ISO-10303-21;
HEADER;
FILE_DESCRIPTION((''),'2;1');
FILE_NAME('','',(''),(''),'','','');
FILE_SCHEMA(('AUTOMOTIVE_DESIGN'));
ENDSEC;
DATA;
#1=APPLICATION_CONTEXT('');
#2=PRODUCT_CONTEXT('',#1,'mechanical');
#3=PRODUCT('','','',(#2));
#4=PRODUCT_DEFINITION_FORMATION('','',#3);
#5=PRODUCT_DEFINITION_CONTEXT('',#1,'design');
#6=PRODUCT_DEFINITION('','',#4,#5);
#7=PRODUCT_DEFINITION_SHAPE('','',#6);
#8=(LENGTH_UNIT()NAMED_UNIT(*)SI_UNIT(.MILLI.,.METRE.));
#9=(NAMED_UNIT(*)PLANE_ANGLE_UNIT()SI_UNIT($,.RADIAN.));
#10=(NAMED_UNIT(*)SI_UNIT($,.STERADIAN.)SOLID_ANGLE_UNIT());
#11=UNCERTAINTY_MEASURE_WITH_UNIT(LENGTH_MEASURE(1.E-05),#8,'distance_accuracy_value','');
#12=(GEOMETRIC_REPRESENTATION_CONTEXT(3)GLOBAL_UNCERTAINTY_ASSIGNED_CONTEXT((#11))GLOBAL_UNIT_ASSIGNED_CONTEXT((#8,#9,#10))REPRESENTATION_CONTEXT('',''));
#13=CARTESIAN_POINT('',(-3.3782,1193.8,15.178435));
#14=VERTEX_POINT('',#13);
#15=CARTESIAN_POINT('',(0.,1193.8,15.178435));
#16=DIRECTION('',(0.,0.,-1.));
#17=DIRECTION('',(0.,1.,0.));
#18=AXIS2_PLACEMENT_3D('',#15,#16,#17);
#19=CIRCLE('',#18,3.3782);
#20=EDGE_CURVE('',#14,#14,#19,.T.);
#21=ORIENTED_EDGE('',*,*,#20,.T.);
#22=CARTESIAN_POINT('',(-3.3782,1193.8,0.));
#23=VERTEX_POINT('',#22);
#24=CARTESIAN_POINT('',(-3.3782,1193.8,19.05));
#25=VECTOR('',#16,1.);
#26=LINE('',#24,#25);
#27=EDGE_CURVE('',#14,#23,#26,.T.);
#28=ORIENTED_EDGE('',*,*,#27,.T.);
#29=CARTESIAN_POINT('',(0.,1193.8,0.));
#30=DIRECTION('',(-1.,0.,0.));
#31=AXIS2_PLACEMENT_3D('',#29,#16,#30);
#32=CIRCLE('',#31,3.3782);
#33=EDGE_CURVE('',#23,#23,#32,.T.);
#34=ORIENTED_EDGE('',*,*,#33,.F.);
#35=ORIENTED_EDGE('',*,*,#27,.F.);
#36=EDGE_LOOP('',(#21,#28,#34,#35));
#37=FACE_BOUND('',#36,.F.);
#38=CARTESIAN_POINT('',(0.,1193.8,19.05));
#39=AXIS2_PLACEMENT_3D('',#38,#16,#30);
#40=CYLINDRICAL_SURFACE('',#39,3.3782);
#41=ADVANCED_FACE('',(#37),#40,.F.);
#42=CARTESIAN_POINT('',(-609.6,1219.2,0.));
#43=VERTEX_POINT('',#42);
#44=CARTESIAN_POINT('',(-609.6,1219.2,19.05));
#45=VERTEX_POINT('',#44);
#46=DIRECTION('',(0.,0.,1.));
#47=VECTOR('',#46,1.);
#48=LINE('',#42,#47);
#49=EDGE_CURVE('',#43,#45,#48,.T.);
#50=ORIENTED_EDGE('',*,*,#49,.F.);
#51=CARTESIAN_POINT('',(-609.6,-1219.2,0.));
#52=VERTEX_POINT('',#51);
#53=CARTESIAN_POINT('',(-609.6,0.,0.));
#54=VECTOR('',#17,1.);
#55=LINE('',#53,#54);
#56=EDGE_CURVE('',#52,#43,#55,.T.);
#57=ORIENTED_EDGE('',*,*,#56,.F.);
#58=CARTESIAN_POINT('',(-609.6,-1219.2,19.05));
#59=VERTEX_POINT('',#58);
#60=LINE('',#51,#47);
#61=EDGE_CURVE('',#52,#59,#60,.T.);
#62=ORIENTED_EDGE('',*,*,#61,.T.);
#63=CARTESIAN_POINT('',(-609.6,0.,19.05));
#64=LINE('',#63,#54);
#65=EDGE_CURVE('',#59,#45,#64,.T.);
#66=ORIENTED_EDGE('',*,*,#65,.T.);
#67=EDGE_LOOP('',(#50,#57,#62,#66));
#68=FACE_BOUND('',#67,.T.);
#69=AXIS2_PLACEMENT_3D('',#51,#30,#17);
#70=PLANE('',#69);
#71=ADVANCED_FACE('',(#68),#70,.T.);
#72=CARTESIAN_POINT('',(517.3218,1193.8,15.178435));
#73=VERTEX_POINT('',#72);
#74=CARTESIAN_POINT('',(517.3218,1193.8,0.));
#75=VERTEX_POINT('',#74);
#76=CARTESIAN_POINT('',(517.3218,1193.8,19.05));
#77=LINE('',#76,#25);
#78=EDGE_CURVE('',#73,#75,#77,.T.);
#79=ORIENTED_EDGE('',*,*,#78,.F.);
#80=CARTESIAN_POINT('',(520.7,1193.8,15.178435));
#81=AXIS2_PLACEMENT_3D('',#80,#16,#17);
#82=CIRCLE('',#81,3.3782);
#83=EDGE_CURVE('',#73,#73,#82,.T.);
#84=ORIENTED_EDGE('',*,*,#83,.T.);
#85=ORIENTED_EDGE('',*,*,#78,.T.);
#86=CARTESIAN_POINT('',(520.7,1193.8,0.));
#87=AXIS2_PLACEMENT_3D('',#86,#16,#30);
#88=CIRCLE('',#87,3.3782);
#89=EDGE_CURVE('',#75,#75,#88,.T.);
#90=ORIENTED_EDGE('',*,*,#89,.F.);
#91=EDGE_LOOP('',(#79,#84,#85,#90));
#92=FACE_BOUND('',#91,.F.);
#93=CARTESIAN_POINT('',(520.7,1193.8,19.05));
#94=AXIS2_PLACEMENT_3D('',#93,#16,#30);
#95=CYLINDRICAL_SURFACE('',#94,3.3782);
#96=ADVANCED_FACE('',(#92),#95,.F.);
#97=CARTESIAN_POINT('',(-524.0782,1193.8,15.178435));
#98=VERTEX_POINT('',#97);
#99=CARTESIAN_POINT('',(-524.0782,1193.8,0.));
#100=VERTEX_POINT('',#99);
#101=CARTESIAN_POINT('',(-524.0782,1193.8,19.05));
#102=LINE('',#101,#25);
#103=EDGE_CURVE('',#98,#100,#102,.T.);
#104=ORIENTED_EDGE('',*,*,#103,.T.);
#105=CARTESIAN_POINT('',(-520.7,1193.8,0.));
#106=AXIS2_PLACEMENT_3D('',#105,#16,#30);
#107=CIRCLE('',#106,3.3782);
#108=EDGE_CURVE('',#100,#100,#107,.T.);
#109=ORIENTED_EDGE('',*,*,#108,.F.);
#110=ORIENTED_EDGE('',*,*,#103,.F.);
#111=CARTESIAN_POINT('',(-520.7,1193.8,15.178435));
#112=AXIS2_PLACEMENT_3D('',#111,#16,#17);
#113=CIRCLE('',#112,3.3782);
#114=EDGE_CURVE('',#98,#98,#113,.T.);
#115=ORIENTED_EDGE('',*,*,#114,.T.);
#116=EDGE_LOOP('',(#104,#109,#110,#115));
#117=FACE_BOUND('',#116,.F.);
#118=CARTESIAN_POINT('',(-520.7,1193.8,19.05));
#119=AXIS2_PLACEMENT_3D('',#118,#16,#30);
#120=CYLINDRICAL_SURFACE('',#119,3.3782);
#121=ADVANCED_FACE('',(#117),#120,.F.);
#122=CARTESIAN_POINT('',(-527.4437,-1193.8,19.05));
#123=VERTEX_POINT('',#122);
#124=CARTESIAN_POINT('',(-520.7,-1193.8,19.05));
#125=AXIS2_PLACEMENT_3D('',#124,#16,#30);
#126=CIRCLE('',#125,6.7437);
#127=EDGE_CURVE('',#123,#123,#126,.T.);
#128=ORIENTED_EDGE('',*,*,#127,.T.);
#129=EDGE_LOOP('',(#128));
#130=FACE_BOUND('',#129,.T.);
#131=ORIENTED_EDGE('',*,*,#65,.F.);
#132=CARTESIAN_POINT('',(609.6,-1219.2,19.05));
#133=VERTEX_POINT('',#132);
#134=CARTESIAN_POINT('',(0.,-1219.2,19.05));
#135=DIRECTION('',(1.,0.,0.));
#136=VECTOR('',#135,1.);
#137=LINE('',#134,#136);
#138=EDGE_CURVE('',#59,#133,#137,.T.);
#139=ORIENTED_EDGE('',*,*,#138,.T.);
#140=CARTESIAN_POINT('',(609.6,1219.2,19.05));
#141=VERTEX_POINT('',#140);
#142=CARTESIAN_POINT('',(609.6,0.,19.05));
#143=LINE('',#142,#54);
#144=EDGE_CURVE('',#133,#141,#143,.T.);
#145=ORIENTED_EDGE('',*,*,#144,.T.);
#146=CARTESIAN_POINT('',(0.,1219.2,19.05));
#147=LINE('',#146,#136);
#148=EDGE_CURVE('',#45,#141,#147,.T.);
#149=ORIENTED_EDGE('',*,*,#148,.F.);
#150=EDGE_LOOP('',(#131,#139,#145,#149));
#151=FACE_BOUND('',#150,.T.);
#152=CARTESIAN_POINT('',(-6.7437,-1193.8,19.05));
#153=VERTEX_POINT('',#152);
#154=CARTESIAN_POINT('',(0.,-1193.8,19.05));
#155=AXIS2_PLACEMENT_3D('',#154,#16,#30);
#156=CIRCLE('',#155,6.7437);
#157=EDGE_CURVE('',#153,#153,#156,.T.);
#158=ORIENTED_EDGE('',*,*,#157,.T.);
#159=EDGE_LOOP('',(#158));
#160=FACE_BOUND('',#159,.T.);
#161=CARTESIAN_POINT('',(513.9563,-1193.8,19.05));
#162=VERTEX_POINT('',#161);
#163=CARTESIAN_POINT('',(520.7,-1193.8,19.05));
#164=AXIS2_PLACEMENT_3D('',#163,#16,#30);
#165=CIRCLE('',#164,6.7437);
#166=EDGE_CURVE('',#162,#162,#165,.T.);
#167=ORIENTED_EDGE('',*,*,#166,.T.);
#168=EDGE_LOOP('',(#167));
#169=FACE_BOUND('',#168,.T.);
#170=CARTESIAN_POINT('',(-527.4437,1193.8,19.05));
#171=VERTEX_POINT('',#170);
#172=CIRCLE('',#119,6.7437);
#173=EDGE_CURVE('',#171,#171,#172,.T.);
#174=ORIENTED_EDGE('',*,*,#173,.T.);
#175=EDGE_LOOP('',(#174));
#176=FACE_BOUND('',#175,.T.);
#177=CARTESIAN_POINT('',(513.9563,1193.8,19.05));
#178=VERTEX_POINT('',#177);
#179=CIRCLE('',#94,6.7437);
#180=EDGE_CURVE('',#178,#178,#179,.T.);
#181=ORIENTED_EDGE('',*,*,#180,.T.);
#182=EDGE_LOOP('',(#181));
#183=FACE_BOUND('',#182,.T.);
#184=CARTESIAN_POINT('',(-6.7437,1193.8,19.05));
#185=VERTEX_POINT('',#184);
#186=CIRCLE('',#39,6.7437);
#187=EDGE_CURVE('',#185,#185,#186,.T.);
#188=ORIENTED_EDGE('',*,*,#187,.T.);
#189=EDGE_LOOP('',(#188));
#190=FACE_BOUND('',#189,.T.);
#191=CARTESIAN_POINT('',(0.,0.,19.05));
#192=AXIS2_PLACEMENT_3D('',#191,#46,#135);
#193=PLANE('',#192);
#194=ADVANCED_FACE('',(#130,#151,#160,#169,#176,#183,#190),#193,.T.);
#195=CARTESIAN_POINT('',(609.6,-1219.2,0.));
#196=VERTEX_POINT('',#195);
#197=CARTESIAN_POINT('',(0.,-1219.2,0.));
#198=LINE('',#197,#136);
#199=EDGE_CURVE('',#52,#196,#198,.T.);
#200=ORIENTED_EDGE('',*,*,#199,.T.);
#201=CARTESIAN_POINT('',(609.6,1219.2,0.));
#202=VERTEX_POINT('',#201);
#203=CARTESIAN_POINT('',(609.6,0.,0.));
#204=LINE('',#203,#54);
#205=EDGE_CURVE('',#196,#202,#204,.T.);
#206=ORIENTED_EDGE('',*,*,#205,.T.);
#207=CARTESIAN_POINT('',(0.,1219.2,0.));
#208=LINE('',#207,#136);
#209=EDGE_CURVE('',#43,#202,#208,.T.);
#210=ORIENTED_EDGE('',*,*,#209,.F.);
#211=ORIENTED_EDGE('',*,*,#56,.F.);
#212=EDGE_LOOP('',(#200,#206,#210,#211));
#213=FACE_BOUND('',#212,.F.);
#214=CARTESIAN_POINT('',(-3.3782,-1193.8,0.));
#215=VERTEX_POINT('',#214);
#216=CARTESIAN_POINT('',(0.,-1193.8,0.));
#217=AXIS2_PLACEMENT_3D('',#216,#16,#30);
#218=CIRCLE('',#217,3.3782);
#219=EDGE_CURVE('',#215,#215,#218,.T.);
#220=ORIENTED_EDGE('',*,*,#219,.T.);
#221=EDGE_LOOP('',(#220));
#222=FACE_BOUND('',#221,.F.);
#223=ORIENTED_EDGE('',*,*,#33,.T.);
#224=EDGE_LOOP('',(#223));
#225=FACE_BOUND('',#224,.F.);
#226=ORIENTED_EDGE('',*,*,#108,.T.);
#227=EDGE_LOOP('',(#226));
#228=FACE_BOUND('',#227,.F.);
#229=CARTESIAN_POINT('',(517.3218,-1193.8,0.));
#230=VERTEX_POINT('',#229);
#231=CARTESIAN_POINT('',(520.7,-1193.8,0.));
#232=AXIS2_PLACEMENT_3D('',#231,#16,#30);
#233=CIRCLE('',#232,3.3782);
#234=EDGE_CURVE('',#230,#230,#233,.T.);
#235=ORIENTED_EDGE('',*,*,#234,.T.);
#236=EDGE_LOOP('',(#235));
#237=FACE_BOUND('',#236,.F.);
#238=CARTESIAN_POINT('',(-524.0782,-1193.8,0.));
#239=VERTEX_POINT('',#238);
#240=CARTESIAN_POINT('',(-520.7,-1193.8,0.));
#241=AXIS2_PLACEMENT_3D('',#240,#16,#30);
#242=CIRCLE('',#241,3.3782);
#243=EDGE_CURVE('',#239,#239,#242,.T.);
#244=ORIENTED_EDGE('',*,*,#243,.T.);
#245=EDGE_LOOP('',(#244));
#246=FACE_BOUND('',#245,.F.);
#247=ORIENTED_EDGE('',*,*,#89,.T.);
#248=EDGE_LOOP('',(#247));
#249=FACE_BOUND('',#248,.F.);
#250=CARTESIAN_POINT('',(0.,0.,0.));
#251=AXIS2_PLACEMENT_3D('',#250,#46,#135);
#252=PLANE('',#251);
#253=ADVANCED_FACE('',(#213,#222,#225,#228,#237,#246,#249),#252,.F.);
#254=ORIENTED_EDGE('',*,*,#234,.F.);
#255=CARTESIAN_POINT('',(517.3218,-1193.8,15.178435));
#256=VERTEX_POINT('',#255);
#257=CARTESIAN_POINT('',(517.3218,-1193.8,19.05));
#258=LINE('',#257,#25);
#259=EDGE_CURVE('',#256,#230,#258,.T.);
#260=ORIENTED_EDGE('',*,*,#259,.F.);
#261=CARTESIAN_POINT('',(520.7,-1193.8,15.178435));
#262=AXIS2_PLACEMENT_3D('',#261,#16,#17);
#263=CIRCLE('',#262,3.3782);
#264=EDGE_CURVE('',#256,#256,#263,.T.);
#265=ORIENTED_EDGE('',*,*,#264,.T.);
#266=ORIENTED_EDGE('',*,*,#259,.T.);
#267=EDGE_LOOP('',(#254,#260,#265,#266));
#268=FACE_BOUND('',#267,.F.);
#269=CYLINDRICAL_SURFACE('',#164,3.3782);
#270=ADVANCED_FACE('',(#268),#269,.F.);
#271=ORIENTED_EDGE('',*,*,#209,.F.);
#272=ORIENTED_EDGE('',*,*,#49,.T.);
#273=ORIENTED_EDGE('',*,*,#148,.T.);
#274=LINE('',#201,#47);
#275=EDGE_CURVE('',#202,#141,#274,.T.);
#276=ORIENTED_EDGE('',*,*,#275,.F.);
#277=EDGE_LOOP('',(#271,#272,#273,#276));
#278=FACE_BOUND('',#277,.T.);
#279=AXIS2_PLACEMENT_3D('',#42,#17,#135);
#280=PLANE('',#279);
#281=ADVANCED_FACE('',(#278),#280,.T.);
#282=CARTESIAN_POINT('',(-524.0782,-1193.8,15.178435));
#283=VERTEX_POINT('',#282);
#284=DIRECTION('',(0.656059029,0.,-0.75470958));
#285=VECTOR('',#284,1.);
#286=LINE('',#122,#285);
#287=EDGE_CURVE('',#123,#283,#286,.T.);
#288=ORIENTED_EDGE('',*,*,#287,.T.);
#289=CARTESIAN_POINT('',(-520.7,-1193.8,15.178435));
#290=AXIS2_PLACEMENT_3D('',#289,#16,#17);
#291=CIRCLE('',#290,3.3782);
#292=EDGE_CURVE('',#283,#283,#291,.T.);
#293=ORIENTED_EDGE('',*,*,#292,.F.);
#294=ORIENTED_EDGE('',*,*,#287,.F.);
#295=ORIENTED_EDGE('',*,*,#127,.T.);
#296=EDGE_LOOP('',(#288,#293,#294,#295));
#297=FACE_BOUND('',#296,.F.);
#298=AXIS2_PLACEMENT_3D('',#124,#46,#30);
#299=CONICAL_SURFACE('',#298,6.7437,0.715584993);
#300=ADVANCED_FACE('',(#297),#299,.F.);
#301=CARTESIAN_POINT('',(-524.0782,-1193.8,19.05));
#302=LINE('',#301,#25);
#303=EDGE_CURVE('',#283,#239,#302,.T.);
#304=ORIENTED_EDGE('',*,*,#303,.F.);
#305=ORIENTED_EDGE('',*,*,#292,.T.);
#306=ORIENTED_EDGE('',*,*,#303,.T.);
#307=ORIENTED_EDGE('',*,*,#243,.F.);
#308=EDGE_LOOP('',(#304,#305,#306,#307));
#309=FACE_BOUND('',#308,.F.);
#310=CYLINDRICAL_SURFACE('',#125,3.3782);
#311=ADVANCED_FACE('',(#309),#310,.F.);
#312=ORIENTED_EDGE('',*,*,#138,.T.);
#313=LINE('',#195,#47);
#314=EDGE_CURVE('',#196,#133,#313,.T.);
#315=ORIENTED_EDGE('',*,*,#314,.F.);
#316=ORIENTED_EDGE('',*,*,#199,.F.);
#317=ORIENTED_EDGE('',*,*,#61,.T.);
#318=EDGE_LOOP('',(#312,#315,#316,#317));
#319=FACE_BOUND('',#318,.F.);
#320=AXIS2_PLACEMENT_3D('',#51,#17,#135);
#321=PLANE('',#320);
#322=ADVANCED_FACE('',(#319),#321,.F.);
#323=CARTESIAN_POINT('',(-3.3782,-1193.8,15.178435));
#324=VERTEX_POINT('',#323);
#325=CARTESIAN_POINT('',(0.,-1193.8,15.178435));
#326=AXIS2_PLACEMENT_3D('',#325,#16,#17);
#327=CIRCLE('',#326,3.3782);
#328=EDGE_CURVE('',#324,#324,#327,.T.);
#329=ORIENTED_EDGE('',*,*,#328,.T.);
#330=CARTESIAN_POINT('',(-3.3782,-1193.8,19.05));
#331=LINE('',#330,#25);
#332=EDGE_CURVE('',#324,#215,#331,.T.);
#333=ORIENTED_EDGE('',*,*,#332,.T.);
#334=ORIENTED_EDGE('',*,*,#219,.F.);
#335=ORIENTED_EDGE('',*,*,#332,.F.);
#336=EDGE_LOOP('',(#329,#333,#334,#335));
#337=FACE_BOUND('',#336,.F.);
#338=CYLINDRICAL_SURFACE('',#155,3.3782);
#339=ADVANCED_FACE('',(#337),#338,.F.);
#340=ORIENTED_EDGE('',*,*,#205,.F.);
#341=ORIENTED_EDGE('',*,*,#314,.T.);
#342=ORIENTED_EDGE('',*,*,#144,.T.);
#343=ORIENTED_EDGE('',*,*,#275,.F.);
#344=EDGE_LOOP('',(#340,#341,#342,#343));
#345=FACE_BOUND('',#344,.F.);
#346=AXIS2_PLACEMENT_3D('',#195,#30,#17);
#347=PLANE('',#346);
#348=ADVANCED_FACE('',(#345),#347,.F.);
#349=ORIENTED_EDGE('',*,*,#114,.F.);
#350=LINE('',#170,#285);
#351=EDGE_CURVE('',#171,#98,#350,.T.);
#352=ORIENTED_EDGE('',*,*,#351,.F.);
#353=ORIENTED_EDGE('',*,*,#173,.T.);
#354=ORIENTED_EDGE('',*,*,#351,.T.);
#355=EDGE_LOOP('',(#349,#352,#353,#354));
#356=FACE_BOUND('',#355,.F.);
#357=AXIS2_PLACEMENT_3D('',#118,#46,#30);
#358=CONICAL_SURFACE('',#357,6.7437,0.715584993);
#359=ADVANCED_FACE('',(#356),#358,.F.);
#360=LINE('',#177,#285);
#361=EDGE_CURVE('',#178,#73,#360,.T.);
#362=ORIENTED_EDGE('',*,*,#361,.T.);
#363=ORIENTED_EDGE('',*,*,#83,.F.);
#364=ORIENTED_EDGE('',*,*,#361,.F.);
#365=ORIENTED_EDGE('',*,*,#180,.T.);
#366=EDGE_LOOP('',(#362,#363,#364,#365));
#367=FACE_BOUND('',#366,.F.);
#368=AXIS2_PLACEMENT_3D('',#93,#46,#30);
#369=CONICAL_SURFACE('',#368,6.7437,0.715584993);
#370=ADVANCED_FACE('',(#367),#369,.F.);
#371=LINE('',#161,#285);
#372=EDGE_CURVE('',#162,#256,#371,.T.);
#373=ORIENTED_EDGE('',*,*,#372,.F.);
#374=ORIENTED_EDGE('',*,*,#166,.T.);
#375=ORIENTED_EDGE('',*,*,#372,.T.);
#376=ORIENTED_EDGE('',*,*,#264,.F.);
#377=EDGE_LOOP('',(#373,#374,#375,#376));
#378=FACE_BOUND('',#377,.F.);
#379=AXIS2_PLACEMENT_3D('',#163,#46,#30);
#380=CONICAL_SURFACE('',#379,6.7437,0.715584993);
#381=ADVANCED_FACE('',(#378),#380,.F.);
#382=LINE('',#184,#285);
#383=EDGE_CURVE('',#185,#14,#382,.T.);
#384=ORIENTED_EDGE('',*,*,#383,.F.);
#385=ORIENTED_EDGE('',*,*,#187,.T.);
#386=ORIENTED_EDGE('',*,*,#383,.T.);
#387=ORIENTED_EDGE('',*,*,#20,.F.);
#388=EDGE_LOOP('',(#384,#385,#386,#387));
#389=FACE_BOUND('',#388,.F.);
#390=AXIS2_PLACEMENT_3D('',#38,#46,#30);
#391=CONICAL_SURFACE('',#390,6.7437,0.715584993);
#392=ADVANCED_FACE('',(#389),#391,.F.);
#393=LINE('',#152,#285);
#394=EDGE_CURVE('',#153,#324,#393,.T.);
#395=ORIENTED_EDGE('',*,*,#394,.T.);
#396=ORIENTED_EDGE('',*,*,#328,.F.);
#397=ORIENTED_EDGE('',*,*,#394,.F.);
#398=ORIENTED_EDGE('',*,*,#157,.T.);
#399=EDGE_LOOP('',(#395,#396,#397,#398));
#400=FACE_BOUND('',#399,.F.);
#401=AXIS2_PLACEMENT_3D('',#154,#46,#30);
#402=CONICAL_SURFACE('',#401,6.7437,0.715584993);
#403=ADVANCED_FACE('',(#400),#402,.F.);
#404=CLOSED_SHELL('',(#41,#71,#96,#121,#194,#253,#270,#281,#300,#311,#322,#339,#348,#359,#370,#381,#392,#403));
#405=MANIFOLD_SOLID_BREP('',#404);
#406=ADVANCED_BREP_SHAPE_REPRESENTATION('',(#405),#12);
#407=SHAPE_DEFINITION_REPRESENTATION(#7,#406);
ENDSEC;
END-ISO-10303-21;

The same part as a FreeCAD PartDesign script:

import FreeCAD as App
import Part
import Sketcher
Q = App.Units.Quantity


def add_polygon(sketch, points):
    """Adds a closed chain of lines whose ends are joined by coincident constraints."""
    first, n = sketch.GeometryCount, len(points)
    for a, b in zip(points, points[1:] + points[:1]):
        sketch.addGeometry(Part.LineSegment(App.Vector(*a, 0), App.Vector(*b, 0)), False)
    for i in range(n):
        sketch.addConstraint(Sketcher.Constraint("Coincident", first + i, 2, first + (i + 1) % n, 1))

doc = App.newDocument("Part")
body = doc.addObject("PartDesign::Body", "Body")

# Sketch on XY plane
sketch1 = body.newObject("Sketcher::SketchObject", "Sketch")
sketch1.AttachmentSupport = (doc.getObject("XY_Plane"), [""])
sketch1.MapMode = "FlatFace"
add_polygon(sketch1, [(-609.6, 1219.2), (-609.6, -1219.2), (609.6, -1219.2), (609.6, 1219.2)])  # lines 0-3
sketch1.addConstraint(Sketcher.Constraint("Vertical", 0))
sketch1.addConstraint(Sketcher.Constraint("Horizontal", 1))
sketch1.addConstraint(Sketcher.Constraint("Vertical", 2))
sketch1.addConstraint(Sketcher.Constraint("Horizontal", 3))
sketch1.addConstraint(Sketcher.Constraint("Symmetric", 0, 2, 2, 2, -1, 1))
sketch1.addConstraint(Sketcher.Constraint("DistanceX", 1, 1, 1, 2, Q("48 in")))
sketch1.addConstraint(Sketcher.Constraint("DistanceY", 0, 2, 0, 1, Q("96 in")))
pad1 = body.newObject("PartDesign::Pad", "Pad")
pad1.Profile = sketch1
pad1.Length = Q("0.75 in")

# Sketch on XY plane
sketch2 = body.newObject("Sketcher::SketchObject", "Sketch001")
sketch2.AttachmentSupport = (doc.getObject("XY_Plane"), [""])
sketch2.MapMode = "FlatFace"
sketch2.AttachmentOffset = App.Placement(App.Vector(0, 0, 0.75 * 25.4), App.Rotation())
sketch2.addGeometry(Part.Circle(App.Vector(-520.7, -1193.8, 0), App.Vector(0, 0, 1), 3.3782), False)
sketch2.addGeometry(Part.Circle(App.Vector(0, -1193.8, 0), App.Vector(0, 0, 1), 3.3782), False)
sketch2.addGeometry(Part.Circle(App.Vector(520.7, -1193.8, 0), App.Vector(0, 0, 1), 3.3782), False)
sketch2.addGeometry(Part.Circle(App.Vector(520.7, 1193.8, 0), App.Vector(0, 0, 1), 3.3782), False)
sketch2.addGeometry(Part.Circle(App.Vector(0, 1193.8, 0), App.Vector(0, 0, 1), 3.3782), False)
sketch2.addGeometry(Part.Circle(App.Vector(-520.7, 1193.8, 0), App.Vector(0, 0, 1), 3.3782), False)
sketch2.addConstraint(Sketcher.Constraint("Equal", 0, 1))
sketch2.addConstraint(Sketcher.Constraint("Equal", 1, 2))
sketch2.addConstraint(Sketcher.Constraint("Equal", 2, 3))
sketch2.addConstraint(Sketcher.Constraint("Equal", 3, 4))
sketch2.addConstraint(Sketcher.Constraint("Equal", 4, 5))
sketch2.addConstraint(Sketcher.Constraint("Symmetric", 0, 3, 3, 3, -1, 1))
sketch2.addConstraint(Sketcher.Constraint("Symmetric", 1, 3, 4, 3, -1, 1))
sketch2.addConstraint(Sketcher.Constraint("Symmetric", 2, 3, 5, 3, -1, 1))
sketch2.addConstraint(Sketcher.Constraint("Symmetric", 0, 3, 2, 3, -2))
sketch2.addConstraint(Sketcher.Constraint("PointOnObject", 1, 3, -2))
sketch2.addConstraint(Sketcher.Constraint("Horizontal", 0, 3, 1, 3))
sketch2.addConstraint(Sketcher.Constraint("Diameter", 0, Q("0.266 in")))
sketch2.addConstraint(Sketcher.Constraint("DistanceY", 0, 3, -1, 1, Q("47 in")))
sketch2.addConstraint(Sketcher.Constraint("DistanceX", 0, 3, 2, 3, Q("41 in")))
doc.recompute()
hole = body.newObject("PartDesign::Hole", "Hole")
hole.Profile = sketch2
hole.ThreadType = "None"
hole.Diameter = Q("0.266 in")
hole.DepthType = "Dimension"
hole.Depth = Q("1 in")
hole.DrillPoint = "Angled"
hole.DrillPointAngle = 118
hole.HoleCutType = "Countersink"
hole.HoleCutDiameter = Q("0.531 in")
hole.HoleCutCountersinkAngle = 82

doc.recompute()
